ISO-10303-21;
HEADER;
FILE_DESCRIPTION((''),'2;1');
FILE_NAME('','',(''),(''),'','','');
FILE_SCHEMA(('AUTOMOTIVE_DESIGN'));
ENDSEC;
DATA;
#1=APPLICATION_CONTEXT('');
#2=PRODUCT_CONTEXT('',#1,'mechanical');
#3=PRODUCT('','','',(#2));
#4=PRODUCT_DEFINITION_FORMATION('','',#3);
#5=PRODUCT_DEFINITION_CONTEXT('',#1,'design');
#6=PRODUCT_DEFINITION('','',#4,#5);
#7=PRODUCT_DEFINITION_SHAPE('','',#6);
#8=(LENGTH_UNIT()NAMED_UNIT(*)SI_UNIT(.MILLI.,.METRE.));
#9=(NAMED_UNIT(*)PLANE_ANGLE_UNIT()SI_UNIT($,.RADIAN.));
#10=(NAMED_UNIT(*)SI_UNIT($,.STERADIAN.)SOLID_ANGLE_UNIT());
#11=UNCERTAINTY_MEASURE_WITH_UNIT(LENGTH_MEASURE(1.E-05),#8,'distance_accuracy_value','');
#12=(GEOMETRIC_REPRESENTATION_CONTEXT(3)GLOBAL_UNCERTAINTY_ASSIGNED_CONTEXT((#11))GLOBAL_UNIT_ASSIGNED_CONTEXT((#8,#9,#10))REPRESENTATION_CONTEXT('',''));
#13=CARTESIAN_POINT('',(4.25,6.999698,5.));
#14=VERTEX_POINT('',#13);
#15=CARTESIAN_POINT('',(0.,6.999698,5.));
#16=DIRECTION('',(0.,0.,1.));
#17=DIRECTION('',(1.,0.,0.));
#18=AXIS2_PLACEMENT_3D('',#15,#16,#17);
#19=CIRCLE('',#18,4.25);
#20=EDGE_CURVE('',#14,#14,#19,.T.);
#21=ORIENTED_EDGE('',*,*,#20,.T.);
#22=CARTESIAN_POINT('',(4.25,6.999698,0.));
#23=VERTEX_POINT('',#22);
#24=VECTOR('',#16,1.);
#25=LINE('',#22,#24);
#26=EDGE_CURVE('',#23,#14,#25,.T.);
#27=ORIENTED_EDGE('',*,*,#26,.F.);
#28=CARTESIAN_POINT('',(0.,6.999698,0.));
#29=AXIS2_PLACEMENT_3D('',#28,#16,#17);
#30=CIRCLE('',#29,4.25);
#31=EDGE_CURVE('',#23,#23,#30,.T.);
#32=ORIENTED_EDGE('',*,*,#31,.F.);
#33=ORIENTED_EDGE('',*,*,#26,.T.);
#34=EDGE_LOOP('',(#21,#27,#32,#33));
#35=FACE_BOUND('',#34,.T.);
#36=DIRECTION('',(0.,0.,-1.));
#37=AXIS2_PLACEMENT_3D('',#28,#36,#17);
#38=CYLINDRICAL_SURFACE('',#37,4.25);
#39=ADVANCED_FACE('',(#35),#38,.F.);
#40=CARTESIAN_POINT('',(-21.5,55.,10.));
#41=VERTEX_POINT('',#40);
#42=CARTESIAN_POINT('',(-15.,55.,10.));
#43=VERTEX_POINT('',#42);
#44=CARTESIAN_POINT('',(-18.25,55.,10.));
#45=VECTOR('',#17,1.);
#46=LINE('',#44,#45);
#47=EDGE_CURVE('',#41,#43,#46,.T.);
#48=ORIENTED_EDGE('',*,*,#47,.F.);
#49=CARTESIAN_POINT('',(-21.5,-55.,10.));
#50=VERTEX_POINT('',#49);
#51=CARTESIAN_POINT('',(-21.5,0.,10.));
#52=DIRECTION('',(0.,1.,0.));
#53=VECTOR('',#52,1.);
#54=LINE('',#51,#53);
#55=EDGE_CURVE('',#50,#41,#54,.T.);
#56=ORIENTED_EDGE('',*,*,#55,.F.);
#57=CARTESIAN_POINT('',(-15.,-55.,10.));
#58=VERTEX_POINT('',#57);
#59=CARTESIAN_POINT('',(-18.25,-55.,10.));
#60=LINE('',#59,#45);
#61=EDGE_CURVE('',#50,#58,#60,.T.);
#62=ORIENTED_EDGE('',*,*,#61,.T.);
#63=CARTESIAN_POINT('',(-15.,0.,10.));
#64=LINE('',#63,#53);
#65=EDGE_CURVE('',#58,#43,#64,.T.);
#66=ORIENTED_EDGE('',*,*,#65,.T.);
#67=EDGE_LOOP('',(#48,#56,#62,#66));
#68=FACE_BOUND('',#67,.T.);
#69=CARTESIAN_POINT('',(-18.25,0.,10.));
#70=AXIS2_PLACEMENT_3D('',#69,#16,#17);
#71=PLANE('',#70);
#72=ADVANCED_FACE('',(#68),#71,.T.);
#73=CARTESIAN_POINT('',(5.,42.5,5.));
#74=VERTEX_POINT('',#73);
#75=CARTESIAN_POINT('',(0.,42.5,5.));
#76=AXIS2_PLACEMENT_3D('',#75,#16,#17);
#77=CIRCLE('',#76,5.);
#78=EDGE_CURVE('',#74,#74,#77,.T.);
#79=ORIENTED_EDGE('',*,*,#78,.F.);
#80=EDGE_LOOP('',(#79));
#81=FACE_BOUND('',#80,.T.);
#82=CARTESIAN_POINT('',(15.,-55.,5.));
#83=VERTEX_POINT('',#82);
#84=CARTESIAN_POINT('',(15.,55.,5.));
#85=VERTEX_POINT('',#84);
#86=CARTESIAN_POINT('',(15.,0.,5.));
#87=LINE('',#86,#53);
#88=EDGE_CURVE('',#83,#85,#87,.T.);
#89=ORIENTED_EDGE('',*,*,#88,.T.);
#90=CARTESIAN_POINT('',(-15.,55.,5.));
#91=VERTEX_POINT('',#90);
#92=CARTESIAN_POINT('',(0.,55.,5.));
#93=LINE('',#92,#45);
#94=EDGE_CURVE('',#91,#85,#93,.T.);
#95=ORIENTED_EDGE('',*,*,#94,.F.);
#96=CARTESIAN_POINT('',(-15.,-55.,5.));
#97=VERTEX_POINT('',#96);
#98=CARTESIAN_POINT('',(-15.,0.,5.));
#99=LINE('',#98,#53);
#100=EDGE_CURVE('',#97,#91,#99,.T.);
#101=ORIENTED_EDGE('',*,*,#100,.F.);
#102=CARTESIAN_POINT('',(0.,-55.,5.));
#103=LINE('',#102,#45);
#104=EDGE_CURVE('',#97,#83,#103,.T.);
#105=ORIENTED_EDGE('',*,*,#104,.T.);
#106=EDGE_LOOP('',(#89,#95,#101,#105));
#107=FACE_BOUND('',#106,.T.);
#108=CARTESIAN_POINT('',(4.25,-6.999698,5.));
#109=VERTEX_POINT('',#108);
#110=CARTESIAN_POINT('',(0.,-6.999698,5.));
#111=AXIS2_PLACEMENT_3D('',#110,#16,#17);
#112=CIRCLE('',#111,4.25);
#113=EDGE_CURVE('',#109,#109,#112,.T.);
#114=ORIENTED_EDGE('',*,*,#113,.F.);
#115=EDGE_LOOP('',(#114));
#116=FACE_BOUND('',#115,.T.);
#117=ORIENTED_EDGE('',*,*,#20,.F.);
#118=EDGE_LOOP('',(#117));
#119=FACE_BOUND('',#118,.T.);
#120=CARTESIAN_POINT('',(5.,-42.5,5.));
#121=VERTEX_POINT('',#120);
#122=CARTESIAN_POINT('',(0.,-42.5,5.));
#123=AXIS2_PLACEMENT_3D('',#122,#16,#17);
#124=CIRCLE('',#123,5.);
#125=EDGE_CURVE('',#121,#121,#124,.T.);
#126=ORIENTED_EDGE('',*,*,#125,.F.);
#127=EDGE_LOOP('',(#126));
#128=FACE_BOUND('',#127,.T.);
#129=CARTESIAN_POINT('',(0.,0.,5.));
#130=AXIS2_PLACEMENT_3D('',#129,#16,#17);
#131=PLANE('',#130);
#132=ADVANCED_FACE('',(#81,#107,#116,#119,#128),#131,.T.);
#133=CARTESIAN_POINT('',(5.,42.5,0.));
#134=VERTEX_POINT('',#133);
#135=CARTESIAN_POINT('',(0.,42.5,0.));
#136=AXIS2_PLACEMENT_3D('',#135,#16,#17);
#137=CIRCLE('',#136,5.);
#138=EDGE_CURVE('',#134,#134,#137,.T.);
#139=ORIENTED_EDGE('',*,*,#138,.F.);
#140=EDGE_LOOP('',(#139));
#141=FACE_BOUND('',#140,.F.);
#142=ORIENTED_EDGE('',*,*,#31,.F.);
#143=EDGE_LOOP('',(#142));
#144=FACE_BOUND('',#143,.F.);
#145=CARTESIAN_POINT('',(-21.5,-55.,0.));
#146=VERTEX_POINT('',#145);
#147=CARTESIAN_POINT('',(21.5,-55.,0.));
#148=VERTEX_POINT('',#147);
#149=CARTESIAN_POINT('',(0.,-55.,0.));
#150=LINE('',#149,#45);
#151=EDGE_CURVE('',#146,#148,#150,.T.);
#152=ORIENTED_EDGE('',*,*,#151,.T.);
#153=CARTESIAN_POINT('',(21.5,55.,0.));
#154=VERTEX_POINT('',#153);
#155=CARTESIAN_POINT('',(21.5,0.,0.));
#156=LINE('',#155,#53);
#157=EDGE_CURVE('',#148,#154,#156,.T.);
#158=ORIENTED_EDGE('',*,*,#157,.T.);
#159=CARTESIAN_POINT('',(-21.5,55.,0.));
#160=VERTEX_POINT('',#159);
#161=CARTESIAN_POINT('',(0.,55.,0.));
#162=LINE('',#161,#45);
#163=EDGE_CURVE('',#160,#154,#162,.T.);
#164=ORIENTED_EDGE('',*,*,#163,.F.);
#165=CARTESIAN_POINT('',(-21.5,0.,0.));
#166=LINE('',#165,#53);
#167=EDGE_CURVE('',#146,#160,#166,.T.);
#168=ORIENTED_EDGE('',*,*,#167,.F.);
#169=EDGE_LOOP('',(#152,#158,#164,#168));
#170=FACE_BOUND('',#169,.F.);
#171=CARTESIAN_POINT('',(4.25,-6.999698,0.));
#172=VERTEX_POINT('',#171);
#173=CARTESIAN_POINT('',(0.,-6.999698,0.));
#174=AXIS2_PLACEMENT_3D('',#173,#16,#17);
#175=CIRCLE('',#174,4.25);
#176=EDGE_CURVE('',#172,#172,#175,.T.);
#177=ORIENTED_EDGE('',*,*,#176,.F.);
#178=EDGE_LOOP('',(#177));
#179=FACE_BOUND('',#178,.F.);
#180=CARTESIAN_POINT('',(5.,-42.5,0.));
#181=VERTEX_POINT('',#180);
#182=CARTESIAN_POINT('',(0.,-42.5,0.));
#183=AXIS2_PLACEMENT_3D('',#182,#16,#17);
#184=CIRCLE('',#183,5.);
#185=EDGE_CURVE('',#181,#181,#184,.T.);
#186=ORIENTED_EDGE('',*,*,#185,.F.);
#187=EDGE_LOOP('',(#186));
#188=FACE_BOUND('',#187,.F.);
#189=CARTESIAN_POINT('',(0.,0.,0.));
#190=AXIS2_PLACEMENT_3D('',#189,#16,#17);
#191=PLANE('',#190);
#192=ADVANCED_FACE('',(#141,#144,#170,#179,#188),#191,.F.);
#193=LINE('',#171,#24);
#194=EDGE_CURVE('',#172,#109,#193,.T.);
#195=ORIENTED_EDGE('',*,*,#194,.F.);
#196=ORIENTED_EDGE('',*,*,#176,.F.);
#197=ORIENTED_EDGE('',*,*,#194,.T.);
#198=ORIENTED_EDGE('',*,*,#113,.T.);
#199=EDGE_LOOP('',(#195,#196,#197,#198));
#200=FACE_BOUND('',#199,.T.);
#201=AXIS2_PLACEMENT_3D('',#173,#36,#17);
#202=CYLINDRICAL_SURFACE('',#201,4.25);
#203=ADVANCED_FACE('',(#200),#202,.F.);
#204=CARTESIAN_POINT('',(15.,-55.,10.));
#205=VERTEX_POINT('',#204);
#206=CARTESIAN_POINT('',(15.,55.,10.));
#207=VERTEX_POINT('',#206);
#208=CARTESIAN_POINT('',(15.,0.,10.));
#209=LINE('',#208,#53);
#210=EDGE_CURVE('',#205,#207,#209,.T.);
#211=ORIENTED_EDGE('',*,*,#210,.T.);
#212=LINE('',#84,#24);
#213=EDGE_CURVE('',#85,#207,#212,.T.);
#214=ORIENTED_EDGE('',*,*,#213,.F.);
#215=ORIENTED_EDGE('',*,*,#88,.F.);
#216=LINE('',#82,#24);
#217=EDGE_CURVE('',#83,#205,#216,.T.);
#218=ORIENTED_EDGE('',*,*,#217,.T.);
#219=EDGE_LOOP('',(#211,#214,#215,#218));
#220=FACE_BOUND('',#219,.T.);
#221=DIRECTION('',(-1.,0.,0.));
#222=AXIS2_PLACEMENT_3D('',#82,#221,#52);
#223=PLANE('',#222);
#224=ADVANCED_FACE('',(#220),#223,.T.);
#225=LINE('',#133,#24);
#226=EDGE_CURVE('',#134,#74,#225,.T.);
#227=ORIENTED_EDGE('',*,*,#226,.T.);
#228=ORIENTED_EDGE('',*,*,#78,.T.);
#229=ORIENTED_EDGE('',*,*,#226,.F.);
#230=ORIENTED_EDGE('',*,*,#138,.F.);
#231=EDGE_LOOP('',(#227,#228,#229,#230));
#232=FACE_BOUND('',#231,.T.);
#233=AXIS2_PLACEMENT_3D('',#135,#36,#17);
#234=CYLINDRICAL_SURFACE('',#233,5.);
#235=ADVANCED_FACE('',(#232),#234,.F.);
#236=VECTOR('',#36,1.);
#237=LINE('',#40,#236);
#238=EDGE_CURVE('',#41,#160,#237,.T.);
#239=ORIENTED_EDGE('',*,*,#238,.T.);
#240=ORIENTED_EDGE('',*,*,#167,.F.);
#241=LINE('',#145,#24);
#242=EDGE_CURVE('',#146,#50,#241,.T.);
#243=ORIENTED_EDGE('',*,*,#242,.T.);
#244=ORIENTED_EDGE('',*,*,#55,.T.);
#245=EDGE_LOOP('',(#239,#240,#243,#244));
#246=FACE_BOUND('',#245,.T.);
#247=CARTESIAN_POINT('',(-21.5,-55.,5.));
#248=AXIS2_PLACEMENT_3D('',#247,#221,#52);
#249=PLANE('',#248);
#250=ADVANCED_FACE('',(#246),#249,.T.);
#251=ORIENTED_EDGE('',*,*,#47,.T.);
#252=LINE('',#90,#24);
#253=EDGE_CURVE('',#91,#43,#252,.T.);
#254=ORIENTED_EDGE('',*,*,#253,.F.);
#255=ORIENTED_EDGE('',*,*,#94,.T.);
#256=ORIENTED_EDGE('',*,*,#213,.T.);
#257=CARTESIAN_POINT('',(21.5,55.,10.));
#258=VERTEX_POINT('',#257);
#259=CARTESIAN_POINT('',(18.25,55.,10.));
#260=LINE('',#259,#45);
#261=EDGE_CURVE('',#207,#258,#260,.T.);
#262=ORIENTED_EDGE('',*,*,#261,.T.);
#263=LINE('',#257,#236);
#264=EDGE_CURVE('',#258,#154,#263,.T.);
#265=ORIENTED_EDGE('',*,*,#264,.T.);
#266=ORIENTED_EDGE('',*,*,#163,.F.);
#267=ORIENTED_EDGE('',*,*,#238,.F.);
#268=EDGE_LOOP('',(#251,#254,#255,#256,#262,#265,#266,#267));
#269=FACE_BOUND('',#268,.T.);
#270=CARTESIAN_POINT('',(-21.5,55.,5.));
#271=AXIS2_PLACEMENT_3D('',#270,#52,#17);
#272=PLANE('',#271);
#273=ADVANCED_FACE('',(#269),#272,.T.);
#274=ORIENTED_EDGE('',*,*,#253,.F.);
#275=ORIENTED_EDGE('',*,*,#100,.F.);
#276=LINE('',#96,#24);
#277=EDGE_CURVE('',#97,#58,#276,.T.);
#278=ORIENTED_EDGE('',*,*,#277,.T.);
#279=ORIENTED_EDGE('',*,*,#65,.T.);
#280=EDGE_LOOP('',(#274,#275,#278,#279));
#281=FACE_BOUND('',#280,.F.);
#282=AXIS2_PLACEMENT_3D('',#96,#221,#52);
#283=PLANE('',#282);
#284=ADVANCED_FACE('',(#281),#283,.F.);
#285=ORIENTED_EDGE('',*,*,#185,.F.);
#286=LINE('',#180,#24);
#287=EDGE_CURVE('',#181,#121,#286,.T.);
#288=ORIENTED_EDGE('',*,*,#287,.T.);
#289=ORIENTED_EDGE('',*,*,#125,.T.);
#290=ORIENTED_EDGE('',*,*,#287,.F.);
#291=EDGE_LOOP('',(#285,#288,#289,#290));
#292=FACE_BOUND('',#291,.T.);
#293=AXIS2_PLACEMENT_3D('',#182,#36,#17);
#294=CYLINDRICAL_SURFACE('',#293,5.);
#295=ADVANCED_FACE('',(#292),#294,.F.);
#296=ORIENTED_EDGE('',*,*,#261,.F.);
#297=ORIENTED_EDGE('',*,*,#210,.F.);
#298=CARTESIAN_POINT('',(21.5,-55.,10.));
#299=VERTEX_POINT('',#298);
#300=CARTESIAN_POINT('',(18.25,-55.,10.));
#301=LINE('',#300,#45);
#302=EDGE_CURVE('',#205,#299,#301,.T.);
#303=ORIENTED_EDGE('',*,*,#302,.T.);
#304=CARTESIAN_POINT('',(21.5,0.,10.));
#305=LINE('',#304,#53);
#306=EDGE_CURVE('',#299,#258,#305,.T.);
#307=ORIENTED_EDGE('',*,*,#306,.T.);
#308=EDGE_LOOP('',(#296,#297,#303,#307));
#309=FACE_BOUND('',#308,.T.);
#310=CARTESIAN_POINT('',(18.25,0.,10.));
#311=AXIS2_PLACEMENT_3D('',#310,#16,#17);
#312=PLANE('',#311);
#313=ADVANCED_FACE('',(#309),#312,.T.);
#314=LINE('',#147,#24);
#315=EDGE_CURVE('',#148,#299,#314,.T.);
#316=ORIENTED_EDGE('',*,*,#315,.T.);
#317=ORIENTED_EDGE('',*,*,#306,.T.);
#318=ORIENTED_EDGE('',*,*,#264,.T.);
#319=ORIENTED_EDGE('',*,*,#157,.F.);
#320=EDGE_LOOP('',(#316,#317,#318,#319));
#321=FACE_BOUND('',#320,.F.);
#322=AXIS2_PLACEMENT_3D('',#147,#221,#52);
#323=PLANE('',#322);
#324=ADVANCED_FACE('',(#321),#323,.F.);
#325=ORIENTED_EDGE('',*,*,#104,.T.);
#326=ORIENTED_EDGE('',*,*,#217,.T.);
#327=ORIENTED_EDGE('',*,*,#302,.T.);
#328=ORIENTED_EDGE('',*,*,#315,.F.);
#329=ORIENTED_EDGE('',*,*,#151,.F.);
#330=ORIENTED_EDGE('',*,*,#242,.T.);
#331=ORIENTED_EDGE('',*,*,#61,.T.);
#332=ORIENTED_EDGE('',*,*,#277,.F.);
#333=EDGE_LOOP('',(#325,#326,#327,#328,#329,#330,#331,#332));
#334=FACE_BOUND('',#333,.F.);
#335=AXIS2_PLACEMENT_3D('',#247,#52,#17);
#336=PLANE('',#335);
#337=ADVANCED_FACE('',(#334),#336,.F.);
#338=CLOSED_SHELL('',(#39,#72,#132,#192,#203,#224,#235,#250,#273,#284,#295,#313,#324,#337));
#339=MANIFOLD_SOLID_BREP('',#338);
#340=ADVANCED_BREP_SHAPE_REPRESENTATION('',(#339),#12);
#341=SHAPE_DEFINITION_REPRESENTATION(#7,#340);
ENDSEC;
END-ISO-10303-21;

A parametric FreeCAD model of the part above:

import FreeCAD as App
import Part
import Sketcher
Q = App.Units.Quantity

doc = App.newDocument("Part")
body = doc.addObject("PartDesign::Body", "Body")

# Sketch on XY plane
sketch1 = doc.addObject("Sketcher::SketchObject", "Sketch")
body.addObject(sketch1)
sketch1.AttachmentSupport = (doc.XY_Plane, [""])
sketch1.MapMode = "FlatFace"
sketch1.addGeometry(Part.LineSegment(App.Vector(-21.5, 55, 0), App.Vector(-21.5, -55, 0)), False)
sketch1.addGeometry(Part.LineSegment(App.Vector(-21.5, -55, 0), App.Vector(21.5, -55, 0)), False)
sketch1.addGeometry(Part.LineSegment(App.Vector(21.5, -55, 0), App.Vector(21.5, 55, 0)), False)
sketch1.addGeometry(Part.LineSegment(App.Vector(21.5, 55, 0), App.Vector(-21.5, 55, 0)), False)
sketch1.addGeometry(Part.Circle(App.Vector(0, -42.5, 0), App.Vector(0, 0, 1), 5), False)
sketch1.addGeometry(Part.Circle(App.Vector(0, -7, 0), App.Vector(0, 0, 1), 4.2), False)
sketch1.addGeometry(Part.Circle(App.Vector(0, 7, 0), App.Vector(0, 0, 1), 4.2), False)
sketch1.addGeometry(Part.Circle(App.Vector(0, 42.5, 0), App.Vector(0, 0, 1), 5), False)
sketch1.addConstraint(Sketcher.Constraint("Coincident", 0, 2, 1, 1))
sketch1.addConstraint(Sketcher.Constraint("Coincident", 1, 2, 2, 1))
sketch1.addConstraint(Sketcher.Constraint("Coincident", 2, 2, 3, 1))
sketch1.addConstraint(Sketcher.Constraint("Coincident", 3, 2, 0, 1))
sketch1.addConstraint(Sketcher.Constraint("Vertical", 0))
sketch1.addConstraint(Sketcher.Constraint("Horizontal", 1))
sketch1.addConstraint(Sketcher.Constraint("Vertical", 2))
sketch1.addConstraint(Sketcher.Constraint("Horizontal", 3))
sketch1.addConstraint(Sketcher.Constraint("Equal", 5, 6))
sketch1.addConstraint(Sketcher.Constraint("Equal", 4, 7))
sketch1.addConstraint(Sketcher.Constraint("Symmetric", 5, 3, 6, 3, -1, 1))
sketch1.addConstraint(Sketcher.Constraint("Symmetric", 4, 3, 7, 3, -1, 1))
sketch1.addConstraint(Sketcher.Constraint("Symmetric", 0, 2, 2, 2, -1, 1))
sketch1.addConstraint(Sketcher.Constraint("PointOnObject", 4, 3, -2))
sketch1.addConstraint(Sketcher.Constraint("PointOnObject", 5, 3, -2))
sketch1.addConstraint(Sketcher.Constraint("Diameter", 4, Q("10 mm")))
sketch1.addConstraint(Sketcher.Constraint("Diameter", 5, Q("8.5 mm")))
sketch1.addConstraint(Sketcher.Constraint("DistanceX", 1, 1, 1, 2, Q("43 mm")))
sketch1.addConstraint(Sketcher.Constraint("DistanceY", 0, 2, 0, 1, Q("110 mm")))
sketch1.addConstraint(Sketcher.Constraint("DistanceY", 4, 3, 7, 3, Q("85 mm")))
sketch1.addConstraint(Sketcher.Constraint("DistanceY", 5, 3, -1, 1, Q("6.999698 mm")))
pad1 = doc.addObject("PartDesign::Pad", "Pad")
body.addObject(pad1)
pad1.Profile = sketch1
pad1.Length = 5

# Sketch on XY plane
sketch2 = doc.addObject("Sketcher::SketchObject", "Sketch001")
body.addObject(sketch2)
sketch2.AttachmentSupport = (doc.XY_Plane, [""])
sketch2.MapMode = "FlatFace"
sketch2.AttachmentOffset = App.Placement(App.Vector(0, 0, 5), App.Rotation())
sketch2.addGeometry(Part.LineSegment(App.Vector(-22, 55, 0), App.Vector(-22, -55, 0)), False)
sketch2.addGeometry(Part.LineSegment(App.Vector(-22, -55, 0), App.Vector(-15, -55, 0)), False)
sketch2.addGeometry(Part.LineSegment(App.Vector(-15, -55, 0), App.Vector(-15, 55, 0)), False)
sketch2.addGeometry(Part.LineSegment(App.Vector(-15, 55, 0), App.Vector(-22, 55, 0)), False)
sketch2.addGeometry(Part.LineSegment(App.Vector(15, 55, 0), App.Vector(15, -55, 0)), False)
sketch2.addGeometry(Part.LineSegment(App.Vector(15, -55, 0), App.Vector(22, -55, 0)), False)
sketch2.addGeometry(Part.LineSegment(App.Vector(22, -55, 0), App.Vector(22, 55, 0)), False)
sketch2.addGeometry(Part.LineSegment(App.Vector(22, 55, 0), App.Vector(15, 55, 0)), False)
sketch2.addConstraint(Sketcher.Constraint("Coincident", 0, 2, 1, 1))
sketch2.addConstraint(Sketcher.Constraint("Coincident", 1, 2, 2, 1))
sketch2.addConstraint(Sketcher.Constraint("Coincident", 2, 2, 3, 1))
sketch2.addConstraint(Sketcher.Constraint("Coincident", 3, 2, 0, 1))
sketch2.addConstraint(Sketcher.Constraint("Coincident", 4, 2, 5, 1))
sketch2.addConstraint(Sketcher.Constraint("Coincident", 5, 2, 6, 1))
sketch2.addConstraint(Sketcher.Constraint("Coincident", 6, 2, 7, 1))
sketch2.addConstraint(Sketcher.Constraint("Coincident", 7, 2, 4, 1))
sketch2.addConstraint(Sketcher.Constraint("Vertical", 0))
sketch2.addConstraint(Sketcher.Constraint("Horizontal", 1))
sketch2.addConstraint(Sketcher.Constraint("Vertical", 2))
sketch2.addConstraint(Sketcher.Constraint("Horizontal", 3))
sketch2.addConstraint(Sketcher.Constraint("Vertical", 4))
sketch2.addConstraint(Sketcher.Constraint("Horizontal", 5))
sketch2.addConstraint(Sketcher.Constraint("Vertical", 6))
sketch2.addConstraint(Sketcher.Constraint("Horizontal", 7))
sketch2.addConstraint(Sketcher.Constraint("Symmetric", 2, 2, 4, 2, -1, 1))
sketch2.addConstraint(Sketcher.Constraint("Symmetric", 0, 2, 6, 2, -1, 1))
sketch2.addConstraint(Sketcher.Constraint("Horizontal", 1, 2, 4, 2))
sketch2.addConstraint(Sketcher.Constraint("DistanceY", 0, 2, 0, 1, Q("110 mm")))
sketch2.addConstraint(Sketcher.Constraint("DistanceX", 1, 1, 1, 2, Q("6.5 mm")))
sketch2.addConstraint(Sketcher.Constraint("DistanceX", 1, 2, -1, 1, Q("15 mm")))
pad2 = doc.addObject("PartDesign::Pad", "Pad001")
body.addObject(pad2)
pad2.Profile = sketch2
pad2.Length = 5

doc.recompute()
